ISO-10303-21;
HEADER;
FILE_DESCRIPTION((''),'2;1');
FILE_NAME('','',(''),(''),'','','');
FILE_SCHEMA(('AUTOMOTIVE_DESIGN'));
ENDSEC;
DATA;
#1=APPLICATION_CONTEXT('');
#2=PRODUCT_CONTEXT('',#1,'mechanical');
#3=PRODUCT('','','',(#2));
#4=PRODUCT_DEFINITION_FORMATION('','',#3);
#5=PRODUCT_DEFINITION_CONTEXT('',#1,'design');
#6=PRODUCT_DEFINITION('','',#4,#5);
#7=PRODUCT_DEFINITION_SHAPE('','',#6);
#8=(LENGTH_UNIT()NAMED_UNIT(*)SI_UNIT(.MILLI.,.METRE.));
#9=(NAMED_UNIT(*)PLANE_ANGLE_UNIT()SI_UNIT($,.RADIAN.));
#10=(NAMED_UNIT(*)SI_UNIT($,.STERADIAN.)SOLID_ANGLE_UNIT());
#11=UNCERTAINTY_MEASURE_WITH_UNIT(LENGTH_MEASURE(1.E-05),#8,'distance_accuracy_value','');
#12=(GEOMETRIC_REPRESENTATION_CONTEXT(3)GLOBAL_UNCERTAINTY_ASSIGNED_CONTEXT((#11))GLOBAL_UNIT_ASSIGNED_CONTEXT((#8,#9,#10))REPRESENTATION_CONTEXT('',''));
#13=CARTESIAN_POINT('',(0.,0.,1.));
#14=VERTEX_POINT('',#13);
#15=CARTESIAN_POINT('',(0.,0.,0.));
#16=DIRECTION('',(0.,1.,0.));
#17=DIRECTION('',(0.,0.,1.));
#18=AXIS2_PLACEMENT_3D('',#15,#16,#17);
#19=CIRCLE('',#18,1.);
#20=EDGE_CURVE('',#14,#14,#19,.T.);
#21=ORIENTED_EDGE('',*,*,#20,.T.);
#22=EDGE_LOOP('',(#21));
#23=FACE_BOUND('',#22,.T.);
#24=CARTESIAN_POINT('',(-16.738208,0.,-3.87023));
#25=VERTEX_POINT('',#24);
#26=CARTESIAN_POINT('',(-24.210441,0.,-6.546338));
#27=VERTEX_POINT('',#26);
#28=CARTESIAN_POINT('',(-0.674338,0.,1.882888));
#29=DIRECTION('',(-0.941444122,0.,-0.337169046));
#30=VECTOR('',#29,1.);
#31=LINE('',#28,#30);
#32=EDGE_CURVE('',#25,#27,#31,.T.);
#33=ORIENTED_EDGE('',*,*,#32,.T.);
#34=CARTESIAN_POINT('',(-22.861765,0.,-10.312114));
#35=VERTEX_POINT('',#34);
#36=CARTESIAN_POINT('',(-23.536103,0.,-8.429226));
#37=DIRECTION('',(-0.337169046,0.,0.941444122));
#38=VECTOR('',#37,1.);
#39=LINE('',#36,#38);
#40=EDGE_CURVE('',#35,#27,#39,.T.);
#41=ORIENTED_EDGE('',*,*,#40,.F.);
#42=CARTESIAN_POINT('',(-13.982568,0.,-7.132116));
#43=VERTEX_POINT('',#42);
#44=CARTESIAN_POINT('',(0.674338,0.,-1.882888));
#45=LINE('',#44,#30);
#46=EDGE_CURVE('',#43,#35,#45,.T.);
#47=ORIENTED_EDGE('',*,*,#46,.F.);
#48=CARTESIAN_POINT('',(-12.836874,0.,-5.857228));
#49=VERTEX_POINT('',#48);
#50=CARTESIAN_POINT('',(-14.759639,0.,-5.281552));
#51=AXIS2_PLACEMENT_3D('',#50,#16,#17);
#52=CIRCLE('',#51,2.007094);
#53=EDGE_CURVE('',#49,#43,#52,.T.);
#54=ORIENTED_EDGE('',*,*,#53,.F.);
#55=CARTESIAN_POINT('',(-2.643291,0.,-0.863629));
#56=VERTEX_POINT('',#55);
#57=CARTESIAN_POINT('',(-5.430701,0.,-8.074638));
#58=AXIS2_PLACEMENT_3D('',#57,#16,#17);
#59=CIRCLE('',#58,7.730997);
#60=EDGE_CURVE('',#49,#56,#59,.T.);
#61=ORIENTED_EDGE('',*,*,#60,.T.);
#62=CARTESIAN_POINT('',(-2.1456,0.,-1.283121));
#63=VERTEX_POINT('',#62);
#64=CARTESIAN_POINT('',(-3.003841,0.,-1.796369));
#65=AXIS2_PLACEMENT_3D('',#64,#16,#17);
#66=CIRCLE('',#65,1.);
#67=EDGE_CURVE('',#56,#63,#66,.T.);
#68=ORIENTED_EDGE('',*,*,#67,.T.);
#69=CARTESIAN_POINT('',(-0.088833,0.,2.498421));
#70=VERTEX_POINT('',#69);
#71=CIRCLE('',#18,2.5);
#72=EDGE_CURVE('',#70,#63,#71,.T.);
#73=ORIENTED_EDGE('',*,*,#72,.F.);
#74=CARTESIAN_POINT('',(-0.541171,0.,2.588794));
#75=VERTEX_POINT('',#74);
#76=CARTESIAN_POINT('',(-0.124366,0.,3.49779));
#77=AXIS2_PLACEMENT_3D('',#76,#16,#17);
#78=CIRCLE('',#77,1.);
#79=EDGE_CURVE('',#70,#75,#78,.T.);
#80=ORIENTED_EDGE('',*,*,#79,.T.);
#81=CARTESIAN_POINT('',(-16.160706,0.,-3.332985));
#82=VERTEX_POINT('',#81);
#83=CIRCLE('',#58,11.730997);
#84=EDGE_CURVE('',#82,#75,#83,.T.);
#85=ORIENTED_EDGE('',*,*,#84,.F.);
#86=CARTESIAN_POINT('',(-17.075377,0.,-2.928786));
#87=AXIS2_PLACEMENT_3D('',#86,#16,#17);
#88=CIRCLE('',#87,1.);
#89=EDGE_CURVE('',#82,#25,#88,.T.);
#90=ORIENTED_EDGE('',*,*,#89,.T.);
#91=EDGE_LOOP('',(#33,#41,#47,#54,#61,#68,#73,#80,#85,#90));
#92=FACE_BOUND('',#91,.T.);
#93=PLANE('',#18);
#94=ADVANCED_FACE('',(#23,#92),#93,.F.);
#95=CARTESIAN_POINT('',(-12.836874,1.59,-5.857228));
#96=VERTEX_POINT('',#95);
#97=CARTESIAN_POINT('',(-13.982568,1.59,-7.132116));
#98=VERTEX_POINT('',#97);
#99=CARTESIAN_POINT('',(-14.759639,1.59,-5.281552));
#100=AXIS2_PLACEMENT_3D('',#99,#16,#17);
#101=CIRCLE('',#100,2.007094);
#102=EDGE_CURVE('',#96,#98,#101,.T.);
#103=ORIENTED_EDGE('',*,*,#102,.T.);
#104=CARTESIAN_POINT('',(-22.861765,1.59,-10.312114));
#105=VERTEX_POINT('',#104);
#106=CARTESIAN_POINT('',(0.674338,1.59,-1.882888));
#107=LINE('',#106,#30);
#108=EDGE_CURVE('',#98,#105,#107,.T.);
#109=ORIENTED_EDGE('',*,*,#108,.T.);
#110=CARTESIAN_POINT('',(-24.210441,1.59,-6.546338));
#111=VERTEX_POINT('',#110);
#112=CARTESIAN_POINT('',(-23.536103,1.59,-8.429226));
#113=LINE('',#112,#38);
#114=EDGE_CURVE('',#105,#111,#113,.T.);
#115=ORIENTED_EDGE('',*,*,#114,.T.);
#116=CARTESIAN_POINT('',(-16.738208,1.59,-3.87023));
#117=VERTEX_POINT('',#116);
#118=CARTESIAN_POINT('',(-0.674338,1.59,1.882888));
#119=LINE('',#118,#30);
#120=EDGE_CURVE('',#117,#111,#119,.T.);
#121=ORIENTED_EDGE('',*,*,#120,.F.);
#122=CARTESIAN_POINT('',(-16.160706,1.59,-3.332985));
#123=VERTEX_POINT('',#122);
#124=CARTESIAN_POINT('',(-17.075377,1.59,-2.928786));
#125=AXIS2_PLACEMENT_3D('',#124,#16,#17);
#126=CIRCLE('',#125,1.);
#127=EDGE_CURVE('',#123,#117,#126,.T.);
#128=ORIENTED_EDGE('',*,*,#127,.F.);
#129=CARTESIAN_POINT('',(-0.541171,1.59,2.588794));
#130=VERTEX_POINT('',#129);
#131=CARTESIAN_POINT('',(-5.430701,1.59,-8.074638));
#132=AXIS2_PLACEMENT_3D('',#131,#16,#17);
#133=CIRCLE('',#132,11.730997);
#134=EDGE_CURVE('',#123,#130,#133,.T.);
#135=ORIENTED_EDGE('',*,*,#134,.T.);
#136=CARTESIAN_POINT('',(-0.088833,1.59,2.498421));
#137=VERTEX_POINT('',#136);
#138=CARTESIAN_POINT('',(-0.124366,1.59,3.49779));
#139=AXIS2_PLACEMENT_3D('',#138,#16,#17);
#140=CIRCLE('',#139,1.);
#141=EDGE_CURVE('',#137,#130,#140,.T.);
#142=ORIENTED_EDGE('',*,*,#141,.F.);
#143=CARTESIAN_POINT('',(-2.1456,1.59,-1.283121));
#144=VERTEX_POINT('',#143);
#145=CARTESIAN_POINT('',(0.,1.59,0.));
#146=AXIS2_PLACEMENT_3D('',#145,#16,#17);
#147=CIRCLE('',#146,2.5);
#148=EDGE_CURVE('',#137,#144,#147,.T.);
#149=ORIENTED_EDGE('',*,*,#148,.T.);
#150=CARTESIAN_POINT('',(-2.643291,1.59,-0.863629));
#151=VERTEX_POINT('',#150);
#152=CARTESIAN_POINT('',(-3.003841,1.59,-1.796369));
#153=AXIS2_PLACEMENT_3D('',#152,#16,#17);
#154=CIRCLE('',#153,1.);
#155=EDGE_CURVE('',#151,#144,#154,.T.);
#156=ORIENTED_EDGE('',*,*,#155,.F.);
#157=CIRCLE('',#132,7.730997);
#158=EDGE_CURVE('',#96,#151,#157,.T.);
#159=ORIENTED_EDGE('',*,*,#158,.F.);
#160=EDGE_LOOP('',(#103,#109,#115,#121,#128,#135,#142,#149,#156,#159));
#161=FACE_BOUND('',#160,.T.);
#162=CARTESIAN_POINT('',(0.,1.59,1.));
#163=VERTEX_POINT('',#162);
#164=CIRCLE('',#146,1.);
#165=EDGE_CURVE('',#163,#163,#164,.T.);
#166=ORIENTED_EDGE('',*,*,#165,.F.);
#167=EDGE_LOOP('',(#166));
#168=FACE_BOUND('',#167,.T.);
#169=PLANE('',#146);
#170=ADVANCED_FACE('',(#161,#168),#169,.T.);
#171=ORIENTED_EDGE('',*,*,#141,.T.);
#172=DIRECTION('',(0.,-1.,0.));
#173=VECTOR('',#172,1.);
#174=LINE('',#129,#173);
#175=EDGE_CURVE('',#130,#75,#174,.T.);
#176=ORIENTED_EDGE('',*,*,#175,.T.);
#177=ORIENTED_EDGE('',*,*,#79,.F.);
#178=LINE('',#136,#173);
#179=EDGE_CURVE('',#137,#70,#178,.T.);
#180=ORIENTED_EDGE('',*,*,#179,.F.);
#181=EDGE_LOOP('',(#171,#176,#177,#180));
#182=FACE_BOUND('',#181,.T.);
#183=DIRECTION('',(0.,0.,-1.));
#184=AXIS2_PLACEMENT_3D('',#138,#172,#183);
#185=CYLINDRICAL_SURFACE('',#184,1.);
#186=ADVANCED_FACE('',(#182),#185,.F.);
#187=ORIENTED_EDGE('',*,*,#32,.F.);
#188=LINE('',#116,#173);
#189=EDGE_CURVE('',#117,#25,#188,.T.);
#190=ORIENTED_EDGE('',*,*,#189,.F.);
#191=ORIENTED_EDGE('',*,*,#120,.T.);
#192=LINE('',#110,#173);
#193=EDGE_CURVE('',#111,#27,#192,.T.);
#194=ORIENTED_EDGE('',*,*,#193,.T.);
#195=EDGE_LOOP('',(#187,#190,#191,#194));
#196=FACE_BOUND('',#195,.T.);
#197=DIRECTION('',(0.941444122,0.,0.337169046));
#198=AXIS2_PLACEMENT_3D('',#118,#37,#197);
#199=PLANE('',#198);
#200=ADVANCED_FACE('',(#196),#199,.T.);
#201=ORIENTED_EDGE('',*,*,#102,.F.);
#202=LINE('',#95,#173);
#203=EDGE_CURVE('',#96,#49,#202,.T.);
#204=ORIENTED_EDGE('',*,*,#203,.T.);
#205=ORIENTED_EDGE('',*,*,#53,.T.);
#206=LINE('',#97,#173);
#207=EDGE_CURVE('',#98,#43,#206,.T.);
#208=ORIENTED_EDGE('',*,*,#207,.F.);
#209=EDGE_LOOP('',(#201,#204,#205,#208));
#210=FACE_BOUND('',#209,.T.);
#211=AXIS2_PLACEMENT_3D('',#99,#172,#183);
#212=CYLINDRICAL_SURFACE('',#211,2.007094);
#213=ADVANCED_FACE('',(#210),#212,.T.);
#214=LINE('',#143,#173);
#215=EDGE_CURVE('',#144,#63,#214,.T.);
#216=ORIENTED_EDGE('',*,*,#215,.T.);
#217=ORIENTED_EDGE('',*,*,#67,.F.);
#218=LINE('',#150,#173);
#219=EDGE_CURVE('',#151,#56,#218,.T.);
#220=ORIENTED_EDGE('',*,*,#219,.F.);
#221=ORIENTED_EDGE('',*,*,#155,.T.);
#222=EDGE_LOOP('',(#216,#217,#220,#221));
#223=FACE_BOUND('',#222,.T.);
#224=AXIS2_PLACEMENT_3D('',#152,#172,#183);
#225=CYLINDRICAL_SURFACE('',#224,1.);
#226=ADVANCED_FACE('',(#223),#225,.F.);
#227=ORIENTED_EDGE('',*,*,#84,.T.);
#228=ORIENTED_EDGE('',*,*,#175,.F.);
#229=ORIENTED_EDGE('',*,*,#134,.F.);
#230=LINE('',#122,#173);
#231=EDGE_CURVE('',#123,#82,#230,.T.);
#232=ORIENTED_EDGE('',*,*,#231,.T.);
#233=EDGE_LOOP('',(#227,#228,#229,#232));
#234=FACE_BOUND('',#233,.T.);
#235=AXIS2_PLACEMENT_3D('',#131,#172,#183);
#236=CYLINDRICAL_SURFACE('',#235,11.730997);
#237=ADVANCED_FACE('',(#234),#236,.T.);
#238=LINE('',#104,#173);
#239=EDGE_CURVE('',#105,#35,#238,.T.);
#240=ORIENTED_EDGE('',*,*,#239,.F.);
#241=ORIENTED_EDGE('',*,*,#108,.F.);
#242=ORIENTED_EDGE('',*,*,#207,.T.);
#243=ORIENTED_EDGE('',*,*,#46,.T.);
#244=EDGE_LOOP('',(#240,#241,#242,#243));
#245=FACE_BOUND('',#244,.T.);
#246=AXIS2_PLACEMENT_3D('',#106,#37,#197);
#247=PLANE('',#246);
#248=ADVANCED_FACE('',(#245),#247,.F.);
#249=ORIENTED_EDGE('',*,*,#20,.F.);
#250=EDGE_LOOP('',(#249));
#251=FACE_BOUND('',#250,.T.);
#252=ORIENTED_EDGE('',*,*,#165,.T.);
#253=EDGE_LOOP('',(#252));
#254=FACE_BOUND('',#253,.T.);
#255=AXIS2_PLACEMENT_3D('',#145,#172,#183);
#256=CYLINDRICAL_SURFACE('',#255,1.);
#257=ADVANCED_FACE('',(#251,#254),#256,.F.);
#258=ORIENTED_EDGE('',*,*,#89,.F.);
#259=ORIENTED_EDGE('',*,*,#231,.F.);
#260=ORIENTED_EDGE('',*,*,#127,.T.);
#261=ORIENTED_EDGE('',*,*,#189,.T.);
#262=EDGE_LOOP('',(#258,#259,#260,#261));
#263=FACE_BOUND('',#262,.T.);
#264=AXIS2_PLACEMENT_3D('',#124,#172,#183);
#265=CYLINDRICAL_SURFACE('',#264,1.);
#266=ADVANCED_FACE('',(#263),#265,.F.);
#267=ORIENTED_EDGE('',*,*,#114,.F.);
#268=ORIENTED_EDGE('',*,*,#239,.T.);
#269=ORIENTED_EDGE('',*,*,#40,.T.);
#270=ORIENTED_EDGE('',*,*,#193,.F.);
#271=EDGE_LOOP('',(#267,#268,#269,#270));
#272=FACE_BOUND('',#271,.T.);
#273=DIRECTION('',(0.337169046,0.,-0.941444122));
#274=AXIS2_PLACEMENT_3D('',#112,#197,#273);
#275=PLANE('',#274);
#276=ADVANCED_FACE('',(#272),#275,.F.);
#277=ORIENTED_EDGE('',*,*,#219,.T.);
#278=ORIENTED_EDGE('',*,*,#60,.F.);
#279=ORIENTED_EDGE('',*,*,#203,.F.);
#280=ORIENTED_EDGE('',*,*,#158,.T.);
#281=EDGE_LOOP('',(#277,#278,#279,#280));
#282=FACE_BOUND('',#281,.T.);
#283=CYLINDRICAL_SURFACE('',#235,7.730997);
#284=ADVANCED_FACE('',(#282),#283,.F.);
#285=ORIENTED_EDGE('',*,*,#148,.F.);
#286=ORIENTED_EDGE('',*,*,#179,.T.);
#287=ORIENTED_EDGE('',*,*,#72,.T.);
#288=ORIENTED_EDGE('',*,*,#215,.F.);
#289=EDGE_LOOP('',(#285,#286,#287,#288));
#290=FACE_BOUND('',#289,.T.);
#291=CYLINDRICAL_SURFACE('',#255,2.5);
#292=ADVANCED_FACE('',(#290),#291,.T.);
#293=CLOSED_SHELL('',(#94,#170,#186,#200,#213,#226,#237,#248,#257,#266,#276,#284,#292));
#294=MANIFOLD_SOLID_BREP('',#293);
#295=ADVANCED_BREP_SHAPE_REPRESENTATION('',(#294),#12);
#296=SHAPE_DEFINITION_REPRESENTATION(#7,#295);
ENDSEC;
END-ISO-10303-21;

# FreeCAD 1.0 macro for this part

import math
import FreeCAD as App
import Part
import Sketcher
from FreeCAD import Vector

doc = App.newDocument("Part")
params = doc.addObject("Spreadsheet::Sheet", "Params")
for row, (alias, value) in enumerate([
    ("sketch1_diameter", "2 mm"),
    ("sketch1_radius", "2.5 mm"),
    ("sketch1_length", "4 mm"),
    ("pad1_length", "1.59 mm"),
], start=1):
    params.set(f"A{row}", alias)
    params.set(f"B{row}", "=" + value)
    params.setAlias(f"B{row}", alias)

body = doc.addObject("PartDesign::Body", "Body")

sketch1 = body.newObject("Sketcher::SketchObject", "Sketch")
sketch1.AttachmentSupport = (doc.getObject("XZ_Plane"), [""])
sketch1.MapMode = "FlatFace"
sketch1.addGeometry([
    Part.LineSegment(Vector(-13.98, -7.13, 0), Vector(-22.86, -10.31, 0)),
    Part.LineSegment(Vector(-22.86, -10.31, 0), Vector(-24.21, -6.55, 0)),
    Part.LineSegment(Vector(-24.21, -6.55, 0), Vector(-16.74, -3.87, 0)),
    Part.ArcOfCircle(Part.Circle(Vector(-17.08, -2.93, 0), Vector(0, 0, 1), 1), math.radians(-70), math.radians(-24)),
    Part.ArcOfCircle(Part.Circle(Vector(-5.43, -8.07, 0), Vector(0, 0, 1), 11.73), math.radians(65), math.radians(156)),
    Part.ArcOfCircle(Part.Circle(Vector(-0.12, 3.5, 0), Vector(0, 0, 1), 1), math.radians(-115), math.radians(-88)),
    Part.ArcOfCircle(Part.Circle(Vector(0, 0, 0), Vector(0, 0, 1), 2.5), math.radians(-149), math.radians(92)),
    Part.ArcOfCircle(Part.Circle(Vector(-3, -1.8, 0), Vector(0, 0, 1), 1), math.radians(31), math.radians(69)),
    Part.ArcOfCircle(Part.Circle(Vector(-5.43, -8.07, 0), Vector(0, 0, 1), 7.73), math.radians(69), math.radians(163)),
    Part.ArcOfCircle(Part.Circle(Vector(-14.76, -5.28, 0), Vector(0, 0, 1), 2.01), math.radians(-67), math.radians(-17)),
    Part.Circle(Vector(0, 0, 0), Vector(0, 0, 1), 1),
], False)
sketch1.addConstraint([
    Sketcher.Constraint("Coincident", 0, 2, 1, 1),
    Sketcher.Constraint("Coincident", 1, 2, 2, 1),
    Sketcher.Constraint("Tangent", 2, 2, 3, 1),
    Sketcher.Constraint("Tangent", 3, 2, 4, 2),
    Sketcher.Constraint("Tangent", 4, 1, 5, 1),
    Sketcher.Constraint("Tangent", 5, 2, 6, 2),
    Sketcher.Constraint("Tangent", 6, 1, 7, 1),
    Sketcher.Constraint("Tangent", 7, 2, 8, 1),
    Sketcher.Constraint("Tangent", 8, 2, 9, 2),
    Sketcher.Constraint("Coincident", 9, 1, 0, 1),
    Sketcher.Constraint("Coincident", 6, 3, -1, 1),
    Sketcher.Constraint("Coincident", 10, 3, -1, 1),
    Sketcher.Constraint("Coincident", 8, 3, 4, 3),
    Sketcher.Constraint("Equal", 3, 5),
    Sketcher.Constraint("Equal", 5, 7),
    Sketcher.Constraint("Equal", 7, 10),
    Sketcher.Constraint("Perpendicular", 0, 1),
    Sketcher.Constraint("Perpendicular", 1, 2),
    Sketcher.Constraint("Diameter", 10, 2.0),
    Sketcher.Constraint("Radius", 6, 2.5),
    Sketcher.Constraint("Distance", 1, 4.0),
    Sketcher.Constraint("Radius", 4, 11.730997),
    Sketcher.Constraint("Radius", 8, 7.730997),
    Sketcher.Constraint("Radius", 9, 2.007094),
    Sketcher.Constraint("DistanceY", 8, 2, 2, 2, 1.986998),
    Sketcher.Constraint("DistanceX", 4, 3, -1, 1, 5.430701),
    Sketcher.Constraint("DistanceX", 6, 1, -1, 1, 2.1456),
    Sketcher.Constraint("DistanceX", 9, 3, 7, 3, 11.755799),
    Sketcher.Constraint("DistanceX", 1, 2, 9, 3, 9.450802),
    Sketcher.Constraint("DistanceY", 4, 3, 1, 2, 1.5283),
])
sketch1.setExpression("Constraints[18]", "Params.sketch1_diameter")
sketch1.setExpression("Constraints[19]", "Params.sketch1_radius")
sketch1.setExpression("Constraints[20]", "Params.sketch1_length")
pad1 = body.newObject("PartDesign::Pad", "Pad")
pad1.Profile = sketch1
pad1.setExpression("Length", "Params.pad1_length")
pad1.Reversed = True

doc.recompute()
